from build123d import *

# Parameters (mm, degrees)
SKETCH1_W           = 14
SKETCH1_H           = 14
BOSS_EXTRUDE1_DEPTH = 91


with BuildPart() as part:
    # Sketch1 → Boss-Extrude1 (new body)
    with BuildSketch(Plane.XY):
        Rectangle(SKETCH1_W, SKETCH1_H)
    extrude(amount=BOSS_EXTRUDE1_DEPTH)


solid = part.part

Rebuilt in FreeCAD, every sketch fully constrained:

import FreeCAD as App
import Part
import Sketcher
Q = App.Units.Quantity


def add_polygon(sketch, points):
    """Adds a closed chain of lines whose ends are joined by coincident constraints."""
    first, n = sketch.GeometryCount, len(points)
    for a, b in zip(points, points[1:] + points[:1]):
        sketch.addGeometry(Part.LineSegment(App.Vector(*a, 0), App.Vector(*b, 0)), False)
    for i in range(n):
        sketch.addConstraint(Sketcher.Constraint("Coincident", first + i, 2, first + (i + 1) % n, 1))

doc = App.newDocument("Part")
body = doc.addObject("PartDesign::Body", "Body")

sketch1 = body.newObject("Sketcher::SketchObject", "Sketch")
sketch1.AttachmentSupport = (doc.getObject("XY_Plane"), [""])
sketch1.MapMode = "FlatFace"
add_polygon(sketch1, [(-7, 7), (-7, -7), (7, -7), (7, 7)])
sketch1.addConstraint(Sketcher.Constraint("Vertical", 0))
sketch1.addConstraint(Sketcher.Constraint("Horizontal", 1))
sketch1.addConstraint(Sketcher.Constraint("Vertical", 2))
sketch1.addConstraint(Sketcher.Constraint("Horizontal", 3))
sketch1.addConstraint(Sketcher.Constraint("Symmetric", 0, 2, 2, 2, -1, 1))
sketch1.addConstraint(Sketcher.Constraint("Equal", 3, 0))
sketch1.addConstraint(Sketcher.Constraint("DistanceX", 1, 1, 1, 2, Q("14 mm")))
pad1 = body.newObject("PartDesign::Pad", "Pad")
pad1.Profile = sketch1
pad1.Length = 91

doc.recompute()
